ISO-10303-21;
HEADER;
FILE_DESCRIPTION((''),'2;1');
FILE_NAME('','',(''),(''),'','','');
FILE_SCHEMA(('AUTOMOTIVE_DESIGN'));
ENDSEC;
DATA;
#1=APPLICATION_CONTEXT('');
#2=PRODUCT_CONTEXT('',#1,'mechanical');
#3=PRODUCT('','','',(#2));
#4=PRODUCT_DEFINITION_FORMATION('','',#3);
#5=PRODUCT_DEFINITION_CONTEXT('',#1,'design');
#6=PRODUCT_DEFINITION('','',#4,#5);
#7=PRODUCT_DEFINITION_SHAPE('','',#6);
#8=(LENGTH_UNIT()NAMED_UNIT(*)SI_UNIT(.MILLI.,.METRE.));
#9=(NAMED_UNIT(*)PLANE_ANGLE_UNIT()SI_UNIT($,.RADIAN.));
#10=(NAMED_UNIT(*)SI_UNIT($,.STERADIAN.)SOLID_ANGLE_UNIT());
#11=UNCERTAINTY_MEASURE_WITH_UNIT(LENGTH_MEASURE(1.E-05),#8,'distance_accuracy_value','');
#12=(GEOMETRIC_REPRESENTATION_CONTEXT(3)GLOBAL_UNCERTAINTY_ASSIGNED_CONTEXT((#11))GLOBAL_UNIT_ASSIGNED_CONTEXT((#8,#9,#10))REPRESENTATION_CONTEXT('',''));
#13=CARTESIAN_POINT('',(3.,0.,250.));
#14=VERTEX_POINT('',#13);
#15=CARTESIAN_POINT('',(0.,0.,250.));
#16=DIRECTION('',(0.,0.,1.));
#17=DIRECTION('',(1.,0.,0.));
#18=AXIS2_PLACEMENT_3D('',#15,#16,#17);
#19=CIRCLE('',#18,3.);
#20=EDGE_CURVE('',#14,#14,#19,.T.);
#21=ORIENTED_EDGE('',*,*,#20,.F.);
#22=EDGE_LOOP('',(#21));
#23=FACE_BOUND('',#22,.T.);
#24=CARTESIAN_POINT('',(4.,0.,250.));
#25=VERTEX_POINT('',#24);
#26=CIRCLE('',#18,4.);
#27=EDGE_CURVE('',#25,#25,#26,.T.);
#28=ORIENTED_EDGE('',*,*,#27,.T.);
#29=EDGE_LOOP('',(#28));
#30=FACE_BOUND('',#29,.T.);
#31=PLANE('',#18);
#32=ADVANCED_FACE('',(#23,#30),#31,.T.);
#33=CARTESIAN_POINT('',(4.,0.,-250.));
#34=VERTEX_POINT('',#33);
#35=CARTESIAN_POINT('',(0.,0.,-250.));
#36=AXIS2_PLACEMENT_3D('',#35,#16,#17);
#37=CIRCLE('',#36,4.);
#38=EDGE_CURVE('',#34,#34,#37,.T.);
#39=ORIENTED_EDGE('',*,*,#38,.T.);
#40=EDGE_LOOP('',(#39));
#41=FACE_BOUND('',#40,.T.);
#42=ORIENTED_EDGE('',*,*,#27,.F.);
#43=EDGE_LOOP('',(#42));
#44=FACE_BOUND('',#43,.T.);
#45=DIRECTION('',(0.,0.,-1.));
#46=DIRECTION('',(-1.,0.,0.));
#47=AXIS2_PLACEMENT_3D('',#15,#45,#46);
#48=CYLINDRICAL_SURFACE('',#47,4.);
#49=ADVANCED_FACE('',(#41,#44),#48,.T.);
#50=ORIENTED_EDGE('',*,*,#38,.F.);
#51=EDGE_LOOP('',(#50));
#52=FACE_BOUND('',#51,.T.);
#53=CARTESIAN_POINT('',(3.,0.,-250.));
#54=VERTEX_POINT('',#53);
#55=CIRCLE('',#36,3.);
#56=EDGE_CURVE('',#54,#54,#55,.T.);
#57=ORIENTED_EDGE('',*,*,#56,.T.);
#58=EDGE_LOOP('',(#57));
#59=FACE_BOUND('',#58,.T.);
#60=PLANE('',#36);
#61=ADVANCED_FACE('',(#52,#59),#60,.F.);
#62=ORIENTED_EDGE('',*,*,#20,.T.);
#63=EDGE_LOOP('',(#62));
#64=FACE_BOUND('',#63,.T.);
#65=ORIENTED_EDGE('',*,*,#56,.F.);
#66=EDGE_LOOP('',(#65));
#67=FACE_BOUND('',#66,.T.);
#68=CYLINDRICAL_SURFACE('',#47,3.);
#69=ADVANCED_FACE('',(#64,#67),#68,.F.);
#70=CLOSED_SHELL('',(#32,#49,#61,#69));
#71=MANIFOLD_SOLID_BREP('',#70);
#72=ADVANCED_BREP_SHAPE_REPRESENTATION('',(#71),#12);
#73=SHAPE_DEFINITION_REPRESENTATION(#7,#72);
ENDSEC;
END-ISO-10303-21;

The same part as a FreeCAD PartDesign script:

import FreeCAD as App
import Part
import Sketcher

V = App.Vector

doc = App.newDocument("Part")
params = doc.addObject("Spreadsheet::Sheet", "Params")
for row, (alias, value) in enumerate([
    ("sketch1_diameter", "8 mm"),
    ("sketch1_diameter2", "6 mm"),
    ("pad1_length", "500 mm"),
], start=1):
    params.set(f"A{row}", alias)
    params.set(f"B{row}", "=" + value)
    params.setAlias(f"B{row}", alias)

body = doc.addObject("PartDesign::Body", "Body")

sketch1 = body.newObject("Sketcher::SketchObject", "Sketch")
sketch1.AttachmentSupport = (doc.getObject("XY_Plane"), [""])
sketch1.MapMode = "FlatFace"
sketch1.addGeometry(Part.Circle(V(0, 0, 0), V(0, 0, 1), 4), False)
sketch1.addGeometry(Part.Circle(V(0, 0, 0), V(0, 0, 1), 3), False)
sketch1.addConstraint(Sketcher.Constraint("Coincident", 0, 3, -1, 1))
sketch1.addConstraint(Sketcher.Constraint("Coincident", 1, 3, -1, 1))
sketch1.addConstraint(Sketcher.Constraint("Diameter", 0, 8.0))
sketch1.addConstraint(Sketcher.Constraint("Diameter", 1, 6.0))
sketch1.setExpression("Constraints[2]", "Params.sketch1_diameter")
sketch1.setExpression("Constraints[3]", "Params.sketch1_diameter2")
pad1 = body.newObject("PartDesign::Pad", "Pad")
pad1.Profile = sketch1
pad1.setExpression("Length", "Params.pad1_length")
pad1.Midplane = True

doc.recompute()
